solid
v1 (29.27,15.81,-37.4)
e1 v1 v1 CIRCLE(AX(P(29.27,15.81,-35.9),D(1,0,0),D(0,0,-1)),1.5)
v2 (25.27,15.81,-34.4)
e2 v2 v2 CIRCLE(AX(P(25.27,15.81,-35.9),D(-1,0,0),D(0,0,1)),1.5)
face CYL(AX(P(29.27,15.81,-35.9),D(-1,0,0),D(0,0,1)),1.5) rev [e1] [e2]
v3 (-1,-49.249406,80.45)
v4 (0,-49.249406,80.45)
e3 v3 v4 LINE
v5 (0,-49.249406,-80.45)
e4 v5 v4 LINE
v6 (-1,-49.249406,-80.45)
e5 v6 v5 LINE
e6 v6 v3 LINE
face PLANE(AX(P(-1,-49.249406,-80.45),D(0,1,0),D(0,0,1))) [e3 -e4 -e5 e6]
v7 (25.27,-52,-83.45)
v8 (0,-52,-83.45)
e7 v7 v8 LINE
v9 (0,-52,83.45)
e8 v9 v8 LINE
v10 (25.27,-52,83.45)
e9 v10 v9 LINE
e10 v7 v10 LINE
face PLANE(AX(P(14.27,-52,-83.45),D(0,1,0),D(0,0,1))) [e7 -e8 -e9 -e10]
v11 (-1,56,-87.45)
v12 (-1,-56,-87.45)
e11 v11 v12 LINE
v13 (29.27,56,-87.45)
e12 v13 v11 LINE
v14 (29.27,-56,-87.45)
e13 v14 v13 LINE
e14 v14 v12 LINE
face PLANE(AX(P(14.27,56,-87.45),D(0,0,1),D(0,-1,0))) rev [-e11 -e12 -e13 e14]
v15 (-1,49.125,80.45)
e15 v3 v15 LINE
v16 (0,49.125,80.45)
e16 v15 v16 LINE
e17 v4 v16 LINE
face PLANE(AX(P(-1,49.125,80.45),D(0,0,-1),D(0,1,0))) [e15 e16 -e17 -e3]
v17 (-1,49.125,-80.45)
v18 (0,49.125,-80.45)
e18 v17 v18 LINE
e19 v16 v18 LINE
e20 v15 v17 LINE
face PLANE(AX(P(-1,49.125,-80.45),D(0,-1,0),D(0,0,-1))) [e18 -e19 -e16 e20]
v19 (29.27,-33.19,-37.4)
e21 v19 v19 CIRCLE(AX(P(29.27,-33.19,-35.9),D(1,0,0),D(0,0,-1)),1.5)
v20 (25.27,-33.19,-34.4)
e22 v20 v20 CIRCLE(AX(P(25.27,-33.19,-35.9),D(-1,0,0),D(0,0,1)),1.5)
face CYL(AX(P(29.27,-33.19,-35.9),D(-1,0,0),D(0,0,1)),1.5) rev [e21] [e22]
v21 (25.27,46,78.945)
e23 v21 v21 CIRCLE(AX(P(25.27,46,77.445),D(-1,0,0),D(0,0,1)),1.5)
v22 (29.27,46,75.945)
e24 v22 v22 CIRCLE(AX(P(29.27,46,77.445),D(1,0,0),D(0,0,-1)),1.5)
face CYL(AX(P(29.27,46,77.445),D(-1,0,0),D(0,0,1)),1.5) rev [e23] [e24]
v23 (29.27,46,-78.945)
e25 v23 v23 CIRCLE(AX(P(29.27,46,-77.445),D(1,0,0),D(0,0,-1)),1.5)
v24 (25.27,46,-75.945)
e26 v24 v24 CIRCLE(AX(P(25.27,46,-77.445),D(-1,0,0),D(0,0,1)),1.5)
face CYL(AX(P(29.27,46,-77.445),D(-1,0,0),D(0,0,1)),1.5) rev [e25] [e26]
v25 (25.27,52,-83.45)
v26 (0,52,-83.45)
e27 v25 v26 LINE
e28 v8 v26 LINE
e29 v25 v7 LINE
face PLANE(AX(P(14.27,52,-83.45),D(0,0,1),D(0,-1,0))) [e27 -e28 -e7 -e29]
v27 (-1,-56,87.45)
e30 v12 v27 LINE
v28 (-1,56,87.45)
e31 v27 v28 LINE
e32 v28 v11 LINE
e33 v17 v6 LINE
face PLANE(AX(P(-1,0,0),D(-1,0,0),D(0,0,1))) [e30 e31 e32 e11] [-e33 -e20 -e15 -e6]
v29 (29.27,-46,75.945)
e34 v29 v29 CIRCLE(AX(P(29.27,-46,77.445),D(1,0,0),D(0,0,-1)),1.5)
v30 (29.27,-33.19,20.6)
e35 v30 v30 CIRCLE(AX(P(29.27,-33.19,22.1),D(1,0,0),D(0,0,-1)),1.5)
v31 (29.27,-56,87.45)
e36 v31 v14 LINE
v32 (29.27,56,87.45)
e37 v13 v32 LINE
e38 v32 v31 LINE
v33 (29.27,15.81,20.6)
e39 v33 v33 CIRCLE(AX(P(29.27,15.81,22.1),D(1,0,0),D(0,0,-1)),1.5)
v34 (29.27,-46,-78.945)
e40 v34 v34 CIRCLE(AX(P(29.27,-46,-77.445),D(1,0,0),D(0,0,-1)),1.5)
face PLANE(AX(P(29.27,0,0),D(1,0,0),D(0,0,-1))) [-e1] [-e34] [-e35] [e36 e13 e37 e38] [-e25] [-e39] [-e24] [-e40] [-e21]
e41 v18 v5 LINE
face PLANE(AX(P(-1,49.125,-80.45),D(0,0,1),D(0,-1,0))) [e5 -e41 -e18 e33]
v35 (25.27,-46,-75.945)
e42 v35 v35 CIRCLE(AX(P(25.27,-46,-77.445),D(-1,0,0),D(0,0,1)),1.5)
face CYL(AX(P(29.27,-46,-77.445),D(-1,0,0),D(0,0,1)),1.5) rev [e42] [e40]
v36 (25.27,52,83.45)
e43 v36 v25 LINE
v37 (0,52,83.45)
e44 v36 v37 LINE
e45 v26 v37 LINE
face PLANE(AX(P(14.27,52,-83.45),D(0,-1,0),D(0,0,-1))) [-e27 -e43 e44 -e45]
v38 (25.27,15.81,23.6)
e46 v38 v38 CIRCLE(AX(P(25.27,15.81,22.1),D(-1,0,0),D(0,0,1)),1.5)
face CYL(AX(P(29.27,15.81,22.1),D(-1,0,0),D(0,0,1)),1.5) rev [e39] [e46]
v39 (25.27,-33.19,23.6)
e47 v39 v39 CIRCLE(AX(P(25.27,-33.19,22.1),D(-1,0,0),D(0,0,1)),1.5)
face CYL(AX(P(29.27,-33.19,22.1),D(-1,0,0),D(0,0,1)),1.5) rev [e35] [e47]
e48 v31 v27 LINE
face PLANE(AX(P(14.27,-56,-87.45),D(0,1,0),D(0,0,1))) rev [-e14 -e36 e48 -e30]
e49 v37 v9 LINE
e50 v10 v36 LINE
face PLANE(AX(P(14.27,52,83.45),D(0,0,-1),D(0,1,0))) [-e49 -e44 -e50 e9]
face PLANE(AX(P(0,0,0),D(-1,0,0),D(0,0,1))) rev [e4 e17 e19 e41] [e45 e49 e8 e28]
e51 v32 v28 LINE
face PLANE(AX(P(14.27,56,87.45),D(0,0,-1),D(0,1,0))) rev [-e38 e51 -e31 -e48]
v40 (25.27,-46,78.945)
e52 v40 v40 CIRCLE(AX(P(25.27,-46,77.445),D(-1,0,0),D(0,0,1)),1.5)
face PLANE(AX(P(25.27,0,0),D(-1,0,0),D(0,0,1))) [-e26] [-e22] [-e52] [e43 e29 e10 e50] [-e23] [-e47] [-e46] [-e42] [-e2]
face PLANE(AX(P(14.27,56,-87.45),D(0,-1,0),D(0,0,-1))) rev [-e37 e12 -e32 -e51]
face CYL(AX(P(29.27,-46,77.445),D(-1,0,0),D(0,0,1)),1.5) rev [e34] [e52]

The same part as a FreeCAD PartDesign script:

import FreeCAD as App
import Part
import Sketcher

doc = App.newDocument("Part")
body = doc.addObject("PartDesign::Body", "Body")

sketch1 = doc.addObject("Sketcher::SketchObject", "Sketch")
body.addObject(sketch1)
sketch1.AttachmentSupport = (doc.YZ_Plane, [""])
sketch1.MapMode = "FlatFace"
sketch1.addGeometry([
    Part.LineSegment(App.Vector(51, 82, 0), App.Vector(-51, 82, 0)),
    Part.LineSegment(App.Vector(-51, 82, 0), App.Vector(-51, -82, 0)),
    Part.LineSegment(App.Vector(-51, -82, 0), App.Vector(51, -82, 0)),
    Part.LineSegment(App.Vector(51, -82, 0), App.Vector(51, 82, 0)),
], False)
sketch1.addConstraint([
    Sketcher.Constraint("Coincident", 0, 2, 1, 1),
    Sketcher.Constraint("Coincident", 1, 2, 2, 1),
    Sketcher.Constraint("Coincident", 2, 2, 3, 1),
    Sketcher.Constraint("Coincident", 3, 2, 0, 1),
    Sketcher.Constraint("Horizontal", 0),
    Sketcher.Constraint("Vertical", 1),
    Sketcher.Constraint("Horizontal", 2),
    Sketcher.Constraint("Vertical", 3),
    Sketcher.Constraint("Symmetric", 0, 2, 2, 2, -1, 1),
    Sketcher.Constraint("DistanceX", 0, 2, 0, 1, 102.0),
    Sketcher.Constraint("DistanceY", 1, 2, 1, 1, 164.9),
])
pad1 = doc.addObject("PartDesign::Pad", "Pad")
body.addObject(pad1)
pad1.Profile = sketch1
pad1.Length = 14.27

sketch2 = doc.addObject("Sketcher::SketchObject", "Sketch001")
body.addObject(sketch2)
sketch2.AttachmentSupport = (doc.YZ_Plane, [""])
sketch2.MapMode = "FlatFace"
sketch2.AttachmentOffset = App.Placement(App.Vector(0, 0, 14.27), App.Rotation())
sketch2.addGeometry([
    Part.LineSegment(App.Vector(51, 82, 0), App.Vector(-51, 82, 0)),
    Part.LineSegment(App.Vector(-51, 82, 0), App.Vector(-51, -82, 0)),
    Part.LineSegment(App.Vector(-51, -82, 0), App.Vector(51, -82, 0)),
    Part.LineSegment(App.Vector(51, -82, 0), App.Vector(51, 82, 0)),
], False)
sketch2.addConstraint([
    Sketcher.Constraint("Coincident", 0, 2, 1, 1),
    Sketcher.Constraint("Coincident", 1, 2, 2, 1),
    Sketcher.Constraint("Coincident", 2, 2, 3, 1),
    Sketcher.Constraint("Coincident", 3, 2, 0, 1),
    Sketcher.Constraint("Horizontal", 0),
    Sketcher.Constraint("Vertical", 1),
    Sketcher.Constraint("Horizontal", 2),
    Sketcher.Constraint("Vertical", 3),
    Sketcher.Constraint("Symmetric", 0, 2, 2, 2, -1, 1),
    Sketcher.Constraint("DistanceX", 0, 2, 0, 1, 102.0),
    Sketcher.Constraint("DistanceY", 1, 2, 1, 1, 164.9),
])
pocket1 = doc.addObject("PartDesign::Pocket", "Pocket")
body.addObject(pocket1)
pocket1.Profile = sketch2
pocket1.Length = 14.27
body2 = doc.addObject("PartDesign::Body", "Body001")

sketch3 = doc.addObject("Sketcher::SketchObject", "Sketch002")
body2.addObject(sketch3)
sketch3.AttachmentSupport = (doc.getObject("YZ_Plane001"), [""])
sketch3.MapMode = "FlatFace"
sketch3.addGeometry([
    Part.LineSegment(App.Vector(56, 87, 0), App.Vector(-56, 87, 0)),
    Part.LineSegment(App.Vector(-56, 87, 0), App.Vector(-56, -87, 0)),
    Part.LineSegment(App.Vector(-56, -87, 0), App.Vector(56, -87, 0)),
    Part.LineSegment(App.Vector(56, -87, 0), App.Vector(56, 87, 0)),
    Part.LineSegment(App.Vector(-52, -83, 0), App.Vector(-52, 83, 0)),
    Part.LineSegment(App.Vector(-52, 83, 0), App.Vector(52, 83, 0)),
    Part.LineSegment(App.Vector(52, 83, 0), App.Vector(52, -83, 0)),
    Part.LineSegment(App.Vector(52, -83, 0), App.Vector(-52, -83, 0)),
], False)
sketch3.addConstraint([
    Sketcher.Constraint("Coincident", 0, 2, 1, 1),
    Sketcher.Constraint("Coincident", 1, 2, 2, 1),
    Sketcher.Constraint("Coincident", 2, 2, 3, 1),
    Sketcher.Constraint("Coincident", 3, 2, 0, 1),
    Sketcher.Constraint("Coincident", 4, 2, 5, 1),
    Sketcher.Constraint("Coincident", 5, 2, 6, 1),
    Sketcher.Constraint("Coincident", 6, 2, 7, 1),
    Sketcher.Constraint("Coincident", 7, 2, 4, 1),
    Sketcher.Constraint("Horizontal", 0),
    Sketcher.Constraint("Vertical", 1),
    Sketcher.Constraint("Horizontal", 2),
    Sketcher.Constraint("Vertical", 3),
    Sketcher.Constraint("Vertical", 4),
    Sketcher.Constraint("Horizontal", 5),
    Sketcher.Constraint("Vertical", 6),
    Sketcher.Constraint("Horizontal", 7),
    Sketcher.Constraint("Symmetric", 0, 2, 2, 2, -1, 1),
    Sketcher.Constraint("Symmetric", 4, 2, 6, 2, -1, 1),
    Sketcher.Constraint("DistanceX", 0, 2, 0, 1, 112.0),
    Sketcher.Constraint("DistanceX", 5, 1, 5, 2, 104.0),
    Sketcher.Constraint("DistanceY", 1, 2, 1, 1, 174.9),
    Sketcher.Constraint("DistanceY", 4, 1, 4, 2, 166.9),
])
pad2 = doc.addObject("PartDesign::Pad", "Pad001")
body2.addObject(pad2)
pad2.Profile = sketch3
pad2.Length = 14.27

sketch4 = doc.addObject("Sketcher::SketchObject", "Sketch003")
body2.addObject(sketch4)
sketch4.AttachmentSupport = (doc.getObject("YZ_Plane001"), [""])
sketch4.MapMode = "FlatFace"
sketch4.addGeometry([
    Part.LineSegment(App.Vector(56, -87, 0), App.Vector(-56, -87, 0)),
    Part.LineSegment(App.Vector(-56, -87, 0), App.Vector(-56, 87, 0)),
    Part.LineSegment(App.Vector(-56, 87, 0), App.Vector(56, 87, 0)),
    Part.LineSegment(App.Vector(56, 87, 0), App.Vector(56, -87, 0)),
    Part.LineSegment(App.Vector(-49, 80, 0), App.Vector(-49, -80, 0)),
    Part.LineSegment(App.Vector(-49, -80, 0), App.Vector(49, -80, 0)),
    Part.LineSegment(App.Vector(49, -80, 0), App.Vector(49, 80, 0)),
    Part.LineSegment(App.Vector(49, 80, 0), App.Vector(-49, 80, 0)),
], False)
sketch4.addConstraint([
    Sketcher.Constraint("Coincident", 0, 2, 1, 1),
    Sketcher.Constraint("Coincident", 1, 2, 2, 1),
    Sketcher.Constraint("Coincident", 2, 2, 3, 1),
    Sketcher.Constraint("Coincident", 3, 2, 0, 1),
    Sketcher.Constraint("Coincident", 4, 2, 5, 1),
    Sketcher.Constraint("Coincident", 5, 2, 6, 1),
    Sketcher.Constraint("Coincident", 6, 2, 7, 1),
    Sketcher.Constraint("Coincident", 7, 2, 4, 1),
    Sketcher.Constraint("Horizontal", 0),
    Sketcher.Constraint("Vertical", 1),
    Sketcher.Constraint("Horizontal", 2),
    Sketcher.Constraint("Vertical", 3),
    Sketcher.Constraint("Vertical", 4),
    Sketcher.Constraint("Horizontal", 5),
    Sketcher.Constraint("Vertical", 6),
    Sketcher.Constraint("Horizontal", 7),
    Sketcher.Constraint("Symmetric", 0, 2, 2, 2, -1, 1),
    Sketcher.Constraint("DistanceX", 0, 2, 0, 1, 112.0),
    Sketcher.Constraint("DistanceY", 1, 1, 1, 2, 174.9),
    Sketcher.Constraint("DistanceY", 4, 2, 4, 1, 160.9),
    Sketcher.Constraint("DistanceY", 0, 2, 4, 2, 7.0),
    Sketcher.Constraint("DistanceX", -1, 1, 5, 2, 49.125),
    Sketcher.Constraint("DistanceX", 5, 1, 5, 2, 98.374406),
])
pad3 = doc.addObject("PartDesign::Pad", "Pad002")
body2.addObject(pad3)
pad3.Profile = sketch4
pad3.Length = 1
pad3.Reversed = True

sketch5 = doc.addObject("Sketcher::SketchObject", "Sketch004")
body2.addObject(sketch5)
sketch5.AttachmentSupport = (doc.getObject("YZ_Plane001"), [""])
sketch5.MapMode = "FlatFace"
sketch5.AttachmentOffset = App.Placement(App.Vector(0, 0, 14.27), App.Rotation())
sketch5.addGeometry([
    Part.LineSegment(App.Vector(56, 87.5, 0), App.Vector(-56, 87.5, 0)),
    Part.LineSegment(App.Vector(-56, 87.5, 0), App.Vector(-56, -87.5, 0)),
    Part.LineSegment(App.Vector(-56, -87.5, 0), App.Vector(56, -87.5, 0)),
    Part.LineSegment(App.Vector(56, -87.5, 0), App.Vector(56, 87.5, 0)),
    Part.Circle(App.Vector(-46, 77.4, 0), App.Vector(0, 0, 1), 1.5),
    Part.Circle(App.Vector(-33.2, 22.1, 0), App.Vector(0, 0, 1), 1.5),
    Part.Circle(App.Vector(-33.2, -35.9, 0), App.Vector(0, 0, 1), 1.5),
    Part.Circle(App.Vector(-46, -77.4, 0), App.Vector(0, 0, 1), 1.5),
    Part.Circle(App.Vector(15.8, 22.1, 0), App.Vector(0, 0, 1), 1.5),
    Part.Circle(App.Vector(46, 77.4, 0), App.Vector(0, 0, 1), 1.5),
    Part.Circle(App.Vector(15.8, -35.9, 0), App.Vector(0, 0, 1), 1.5),
    Part.Circle(App.Vector(46, -77.4, 0), App.Vector(0, 0, 1), 1.5),
], False)
sketch5.addConstraint([
    Sketcher.Constraint("Coincident", 0, 2, 1, 1),
    Sketcher.Constraint("Coincident", 1, 2, 2, 1),
    Sketcher.Constraint("Coincident", 2, 2, 3, 1),
    Sketcher.Constraint("Coincident", 3, 2, 0, 1),
    Sketcher.Constraint("Horizontal", 0),
    Sketcher.Constraint("Vertical", 1),
    Sketcher.Constraint("Horizontal", 2),
    Sketcher.Constraint("Vertical", 3),
    Sketcher.Constraint("Equal", 4, 5),
    Sketcher.Constraint("Equal", 5, 6),
    Sketcher.Constraint("Equal", 6, 7),
    Sketcher.Constraint("Equal", 7, 8),
    Sketcher.Constraint("Equal", 8, 9),
    Sketcher.Constraint("Equal", 9, 10),
    Sketcher.Constraint("Equal", 10, 11),
    Sketcher.Constraint("Symmetric", 7, 3, 9, 3, -1, 1),
    Sketcher.Constraint("Symmetric", 4, 3, 11, 3, -1, 1),
    Sketcher.Constraint("Symmetric", 0, 2, 2, 2, -1, 1),
    Sketcher.Constraint("Symmetric", 4, 3, 9, 3, -2),
    Sketcher.Constraint("Horizontal", 5, 3, 8, 3),
    Sketcher.Constraint("Horizontal", 6, 3, 10, 3),
    Sketcher.Constraint("Vertical", 5, 3, 6, 3),
    Sketcher.Constraint("Vertical", 8, 3, 10, 3),
    Sketcher.Constraint("Diameter", 4, 3.0),
    Sketcher.Constraint("DistanceX", 0, 2, 0, 1, 112.0),
    Sketcher.Constraint("DistanceY", 1, 2, 1, 1, 174.9),
    Sketcher.Constraint("DistanceX", 4, 3, -1, 1, 46.0),
    Sketcher.Constraint("DistanceY", 6, 3, 5, 3, 58.0),
    Sketcher.Constraint("DistanceX", 5, 3, 8, 3, 49.0),
    Sketcher.Constraint("DistanceY", -1, 1, 5, 3, 22.1),
    Sketcher.Constraint("DistanceX", 5, 3, -1, 1, 33.19),
    Sketcher.Constraint("DistanceY", 7, 3, 4, 3, 154.89),
])
pad4 = doc.addObject("PartDesign::Pad", "Pad003")
body2.addObject(pad4)
pad4.Profile = sketch5
pad4.Length = 15

sketch6 = doc.addObject("Sketcher::SketchObject", "Sketch005")
body2.addObject(sketch6)
sketch6.AttachmentSupport = (doc.getObject("YZ_Plane001"), [""])
sketch6.MapMode = "FlatFace"
sketch6.AttachmentOffset = App.Placement(App.Vector(0, 0, 14.27), App.Rotation())
sketch6.addGeometry([
    Part.LineSegment(App.Vector(49, -80, 0), App.Vector(-49, -80, 0)),
    Part.LineSegment(App.Vector(-49, -80, 0), App.Vector(-49, 80, 0)),
    Part.LineSegment(App.Vector(-49, 80, 0), App.Vector(49, 80, 0)),
    Part.LineSegment(App.Vector(49, 80, 0), App.Vector(49, -80, 0)),
], False)
sketch6.addConstraint([
    Sketcher.Constraint("Coincident", 0, 2, 1, 1),
    Sketcher.Constraint("Coincident", 1, 2, 2, 1),
    Sketcher.Constraint("Coincident", 2, 2, 3, 1),
    Sketcher.Constraint("Coincident", 3, 2, 0, 1),
    Sketcher.Constraint("Horizontal", 0),
    Sketcher.Constraint("Vertical", 1),
    Sketcher.Constraint("Horizontal", 2),
    Sketcher.Constraint("Vertical", 3),
    Sketcher.Constraint("DistanceY", 1, 1, 1, 2, 160.9),
    Sketcher.Constraint("DistanceY", 0, 2, -1, 1, 80.45),
    Sketcher.Constraint("DistanceX", -1, 1, 2, 2, 49.125),
    Sketcher.Constraint("DistanceX", 0, 2, 0, 1, 98.374406),
])
pocket2 = doc.addObject("PartDesign::Pocket", "Pocket001")
body2.addObject(pocket2)
pocket2.Profile = sketch6
pocket2.Length = 9
pocket2.Reversed = True

sketch7 = doc.addObject("Sketcher::SketchObject", "Sketch006")
body2.addObject(sketch7)
sketch7.AttachmentSupport = (doc.getObject("YZ_Plane001"), [""])
sketch7.MapMode = "FlatFace"
sketch7.AttachmentOffset = App.Placement(App.Vector(0, 0, 14.27), App.Rotation())
sketch7.addGeometry([
    Part.LineSegment(App.Vector(52, -83, 0), App.Vector(-52, -83, 0)),
    Part.LineSegment(App.Vector(-52, -83, 0), App.Vector(-52, 83, 0)),
    Part.LineSegment(App.Vector(-52, 83, 0), App.Vector(52, 83, 0)),
    Part.LineSegment(App.Vector(52, 83, 0), App.Vector(52, -83, 0)),
], False)
sketch7.addConstraint([
    Sketcher.Constraint("Coincident", 0, 2, 1, 1),
    Sketcher.Constraint("Coincident", 1, 2, 2, 1),
    Sketcher.Constraint("Coincident", 2, 2, 3, 1),
    Sketcher.Constraint("Coincident", 3, 2, 0, 1),
    Sketcher.Constraint("Horizontal", 0),
    Sketcher.Constraint("Vertical", 1),
    Sketcher.Constraint("Horizontal", 2),
    Sketcher.Constraint("Vertical", 3),
    Sketcher.Constraint("Symmetric", 0, 2, 2, 2, -1, 1),
    Sketcher.Constraint("DistanceX", 0, 2, 0, 1, 104.0),
    Sketcher.Constraint("DistanceY", 1, 1, 1, 2, 166.9),
])
pocket3 = doc.addObject("PartDesign::Pocket", "Pocket002")
body2.addObject(pocket3)
pocket3.Profile = sketch7
pocket3.Length = 11
pocket3.Reversed = True

doc.recompute()
